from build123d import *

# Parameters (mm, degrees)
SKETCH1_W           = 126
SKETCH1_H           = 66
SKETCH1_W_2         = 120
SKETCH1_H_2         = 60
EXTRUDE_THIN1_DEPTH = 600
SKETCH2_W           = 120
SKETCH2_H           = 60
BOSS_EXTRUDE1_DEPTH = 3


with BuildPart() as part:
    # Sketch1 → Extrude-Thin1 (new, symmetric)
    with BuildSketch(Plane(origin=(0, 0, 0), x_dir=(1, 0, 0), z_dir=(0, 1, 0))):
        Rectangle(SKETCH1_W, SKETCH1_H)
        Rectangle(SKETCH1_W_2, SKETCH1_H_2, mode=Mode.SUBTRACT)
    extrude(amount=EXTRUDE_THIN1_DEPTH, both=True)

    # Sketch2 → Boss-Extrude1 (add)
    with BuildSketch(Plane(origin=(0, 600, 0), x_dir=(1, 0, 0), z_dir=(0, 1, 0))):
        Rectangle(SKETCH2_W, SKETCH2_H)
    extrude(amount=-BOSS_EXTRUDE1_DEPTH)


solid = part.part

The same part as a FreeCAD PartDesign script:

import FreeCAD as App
import Part
import Sketcher

V = App.Vector
Q = App.Units.Quantity

doc = App.newDocument("Part")
body = doc.addObject("PartDesign::Body", "Body")

sketch1 = body.newObject("Sketcher::SketchObject", "Sketch")
sketch1.AttachmentSupport = (doc.getObject("XZ_Plane"), [""])
sketch1.MapMode = "FlatFace"
sketch1.addGeometry(Part.LineSegment(V(-63, -33, 0), V(-63, 33, 0)), False)
sketch1.addGeometry(Part.LineSegment(V(-63, 33, 0), V(63, 33, 0)), False)
sketch1.addGeometry(Part.LineSegment(V(63, 33, 0), V(63, -33, 0)), False)
sketch1.addGeometry(Part.LineSegment(V(63, -33, 0), V(-63, -33, 0)), False)
sketch1.addGeometry(Part.LineSegment(V(60, 30, 0), V(-60, 30, 0)), False)
sketch1.addGeometry(Part.LineSegment(V(-60, 30, 0), V(-60, -30, 0)), False)
sketch1.addGeometry(Part.LineSegment(V(-60, -30, 0), V(60, -30, 0)), False)
sketch1.addGeometry(Part.LineSegment(V(60, -30, 0), V(60, 30, 0)), False)
sketch1.addConstraint(Sketcher.Constraint("Coincident", 0, 2, 1, 1))
sketch1.addConstraint(Sketcher.Constraint("Coincident", 1, 2, 2, 1))
sketch1.addConstraint(Sketcher.Constraint("Coincident", 2, 2, 3, 1))
sketch1.addConstraint(Sketcher.Constraint("Coincident", 3, 2, 0, 1))
sketch1.addConstraint(Sketcher.Constraint("Coincident", 4, 2, 5, 1))
sketch1.addConstraint(Sketcher.Constraint("Coincident", 5, 2, 6, 1))
sketch1.addConstraint(Sketcher.Constraint("Coincident", 6, 2, 7, 1))
sketch1.addConstraint(Sketcher.Constraint("Coincident", 7, 2, 4, 1))
sketch1.addConstraint(Sketcher.Constraint("Vertical", 0))
sketch1.addConstraint(Sketcher.Constraint("Horizontal", 1))
sketch1.addConstraint(Sketcher.Constraint("Vertical", 2))
sketch1.addConstraint(Sketcher.Constraint("Horizontal", 3))
sketch1.addConstraint(Sketcher.Constraint("Horizontal", 4))
sketch1.addConstraint(Sketcher.Constraint("Vertical", 5))
sketch1.addConstraint(Sketcher.Constraint("Horizontal", 6))
sketch1.addConstraint(Sketcher.Constraint("Vertical", 7))
sketch1.addConstraint(Sketcher.Constraint("Symmetric", 0, 2, 2, 2, -1, 1))
sketch1.addConstraint(Sketcher.Constraint("Symmetric", 4, 2, 6, 2, -1, 1))
sketch1.addConstraint(Sketcher.Constraint("DistanceX", 1, 1, 1, 2, Q("126 mm")))
sketch1.addConstraint(Sketcher.Constraint("DistanceX", 4, 2, 4, 1, Q("120 mm")))
sketch1.addConstraint(Sketcher.Constraint("DistanceY", 0, 1, 0, 2, Q("66 mm")))
sketch1.addConstraint(Sketcher.Constraint("DistanceY", 5, 2, 5, 1, Q("60 mm")))
pad1 = body.newObject("PartDesign::Pad", "Pad")
pad1.Profile = sketch1
pad1.Length = 1200
pad1.Midplane = True

sketch2 = body.newObject("Sketcher::SketchObject", "Sketch001")
sketch2.AttachmentSupport = (doc.getObject("XZ_Plane"), [""])
sketch2.MapMode = "FlatFace"
sketch2.AttachmentOffset = App.Placement(V(0, 0, -600), App.Rotation())
sketch2.addGeometry(Part.LineSegment(V(-60, -30, 0), V(-60, 30, 0)), False)
sketch2.addGeometry(Part.LineSegment(V(-60, 30, 0), V(60, 30, 0)), False)
sketch2.addGeometry(Part.LineSegment(V(60, 30, 0), V(60, -30, 0)), False)
sketch2.addGeometry(Part.LineSegment(V(60, -30, 0), V(-60, -30, 0)), False)
sketch2.addConstraint(Sketcher.Constraint("Coincident", 0, 2, 1, 1))
sketch2.addConstraint(Sketcher.Constraint("Coincident", 1, 2, 2, 1))
sketch2.addConstraint(Sketcher.Constraint("Coincident", 2, 2, 3, 1))
sketch2.addConstraint(Sketcher.Constraint("Coincident", 3, 2, 0, 1))
sketch2.addConstraint(Sketcher.Constraint("Vertical", 0))
sketch2.addConstraint(Sketcher.Constraint("Horizontal", 1))
sketch2.addConstraint(Sketcher.Constraint("Vertical", 2))
sketch2.addConstraint(Sketcher.Constraint("Horizontal", 3))
sketch2.addConstraint(Sketcher.Constraint("Symmetric", 0, 2, 2, 2, -1, 1))
sketch2.addConstraint(Sketcher.Constraint("DistanceX", 1, 1, 1, 2, Q("120 mm")))
sketch2.addConstraint(Sketcher.Constraint("DistanceY", 0, 1, 0, 2, Q("60 mm")))
pad2 = body.newObject("PartDesign::Pad", "Pad001")
pad2.Profile = sketch2
pad2.Length = 3

doc.recompute()
